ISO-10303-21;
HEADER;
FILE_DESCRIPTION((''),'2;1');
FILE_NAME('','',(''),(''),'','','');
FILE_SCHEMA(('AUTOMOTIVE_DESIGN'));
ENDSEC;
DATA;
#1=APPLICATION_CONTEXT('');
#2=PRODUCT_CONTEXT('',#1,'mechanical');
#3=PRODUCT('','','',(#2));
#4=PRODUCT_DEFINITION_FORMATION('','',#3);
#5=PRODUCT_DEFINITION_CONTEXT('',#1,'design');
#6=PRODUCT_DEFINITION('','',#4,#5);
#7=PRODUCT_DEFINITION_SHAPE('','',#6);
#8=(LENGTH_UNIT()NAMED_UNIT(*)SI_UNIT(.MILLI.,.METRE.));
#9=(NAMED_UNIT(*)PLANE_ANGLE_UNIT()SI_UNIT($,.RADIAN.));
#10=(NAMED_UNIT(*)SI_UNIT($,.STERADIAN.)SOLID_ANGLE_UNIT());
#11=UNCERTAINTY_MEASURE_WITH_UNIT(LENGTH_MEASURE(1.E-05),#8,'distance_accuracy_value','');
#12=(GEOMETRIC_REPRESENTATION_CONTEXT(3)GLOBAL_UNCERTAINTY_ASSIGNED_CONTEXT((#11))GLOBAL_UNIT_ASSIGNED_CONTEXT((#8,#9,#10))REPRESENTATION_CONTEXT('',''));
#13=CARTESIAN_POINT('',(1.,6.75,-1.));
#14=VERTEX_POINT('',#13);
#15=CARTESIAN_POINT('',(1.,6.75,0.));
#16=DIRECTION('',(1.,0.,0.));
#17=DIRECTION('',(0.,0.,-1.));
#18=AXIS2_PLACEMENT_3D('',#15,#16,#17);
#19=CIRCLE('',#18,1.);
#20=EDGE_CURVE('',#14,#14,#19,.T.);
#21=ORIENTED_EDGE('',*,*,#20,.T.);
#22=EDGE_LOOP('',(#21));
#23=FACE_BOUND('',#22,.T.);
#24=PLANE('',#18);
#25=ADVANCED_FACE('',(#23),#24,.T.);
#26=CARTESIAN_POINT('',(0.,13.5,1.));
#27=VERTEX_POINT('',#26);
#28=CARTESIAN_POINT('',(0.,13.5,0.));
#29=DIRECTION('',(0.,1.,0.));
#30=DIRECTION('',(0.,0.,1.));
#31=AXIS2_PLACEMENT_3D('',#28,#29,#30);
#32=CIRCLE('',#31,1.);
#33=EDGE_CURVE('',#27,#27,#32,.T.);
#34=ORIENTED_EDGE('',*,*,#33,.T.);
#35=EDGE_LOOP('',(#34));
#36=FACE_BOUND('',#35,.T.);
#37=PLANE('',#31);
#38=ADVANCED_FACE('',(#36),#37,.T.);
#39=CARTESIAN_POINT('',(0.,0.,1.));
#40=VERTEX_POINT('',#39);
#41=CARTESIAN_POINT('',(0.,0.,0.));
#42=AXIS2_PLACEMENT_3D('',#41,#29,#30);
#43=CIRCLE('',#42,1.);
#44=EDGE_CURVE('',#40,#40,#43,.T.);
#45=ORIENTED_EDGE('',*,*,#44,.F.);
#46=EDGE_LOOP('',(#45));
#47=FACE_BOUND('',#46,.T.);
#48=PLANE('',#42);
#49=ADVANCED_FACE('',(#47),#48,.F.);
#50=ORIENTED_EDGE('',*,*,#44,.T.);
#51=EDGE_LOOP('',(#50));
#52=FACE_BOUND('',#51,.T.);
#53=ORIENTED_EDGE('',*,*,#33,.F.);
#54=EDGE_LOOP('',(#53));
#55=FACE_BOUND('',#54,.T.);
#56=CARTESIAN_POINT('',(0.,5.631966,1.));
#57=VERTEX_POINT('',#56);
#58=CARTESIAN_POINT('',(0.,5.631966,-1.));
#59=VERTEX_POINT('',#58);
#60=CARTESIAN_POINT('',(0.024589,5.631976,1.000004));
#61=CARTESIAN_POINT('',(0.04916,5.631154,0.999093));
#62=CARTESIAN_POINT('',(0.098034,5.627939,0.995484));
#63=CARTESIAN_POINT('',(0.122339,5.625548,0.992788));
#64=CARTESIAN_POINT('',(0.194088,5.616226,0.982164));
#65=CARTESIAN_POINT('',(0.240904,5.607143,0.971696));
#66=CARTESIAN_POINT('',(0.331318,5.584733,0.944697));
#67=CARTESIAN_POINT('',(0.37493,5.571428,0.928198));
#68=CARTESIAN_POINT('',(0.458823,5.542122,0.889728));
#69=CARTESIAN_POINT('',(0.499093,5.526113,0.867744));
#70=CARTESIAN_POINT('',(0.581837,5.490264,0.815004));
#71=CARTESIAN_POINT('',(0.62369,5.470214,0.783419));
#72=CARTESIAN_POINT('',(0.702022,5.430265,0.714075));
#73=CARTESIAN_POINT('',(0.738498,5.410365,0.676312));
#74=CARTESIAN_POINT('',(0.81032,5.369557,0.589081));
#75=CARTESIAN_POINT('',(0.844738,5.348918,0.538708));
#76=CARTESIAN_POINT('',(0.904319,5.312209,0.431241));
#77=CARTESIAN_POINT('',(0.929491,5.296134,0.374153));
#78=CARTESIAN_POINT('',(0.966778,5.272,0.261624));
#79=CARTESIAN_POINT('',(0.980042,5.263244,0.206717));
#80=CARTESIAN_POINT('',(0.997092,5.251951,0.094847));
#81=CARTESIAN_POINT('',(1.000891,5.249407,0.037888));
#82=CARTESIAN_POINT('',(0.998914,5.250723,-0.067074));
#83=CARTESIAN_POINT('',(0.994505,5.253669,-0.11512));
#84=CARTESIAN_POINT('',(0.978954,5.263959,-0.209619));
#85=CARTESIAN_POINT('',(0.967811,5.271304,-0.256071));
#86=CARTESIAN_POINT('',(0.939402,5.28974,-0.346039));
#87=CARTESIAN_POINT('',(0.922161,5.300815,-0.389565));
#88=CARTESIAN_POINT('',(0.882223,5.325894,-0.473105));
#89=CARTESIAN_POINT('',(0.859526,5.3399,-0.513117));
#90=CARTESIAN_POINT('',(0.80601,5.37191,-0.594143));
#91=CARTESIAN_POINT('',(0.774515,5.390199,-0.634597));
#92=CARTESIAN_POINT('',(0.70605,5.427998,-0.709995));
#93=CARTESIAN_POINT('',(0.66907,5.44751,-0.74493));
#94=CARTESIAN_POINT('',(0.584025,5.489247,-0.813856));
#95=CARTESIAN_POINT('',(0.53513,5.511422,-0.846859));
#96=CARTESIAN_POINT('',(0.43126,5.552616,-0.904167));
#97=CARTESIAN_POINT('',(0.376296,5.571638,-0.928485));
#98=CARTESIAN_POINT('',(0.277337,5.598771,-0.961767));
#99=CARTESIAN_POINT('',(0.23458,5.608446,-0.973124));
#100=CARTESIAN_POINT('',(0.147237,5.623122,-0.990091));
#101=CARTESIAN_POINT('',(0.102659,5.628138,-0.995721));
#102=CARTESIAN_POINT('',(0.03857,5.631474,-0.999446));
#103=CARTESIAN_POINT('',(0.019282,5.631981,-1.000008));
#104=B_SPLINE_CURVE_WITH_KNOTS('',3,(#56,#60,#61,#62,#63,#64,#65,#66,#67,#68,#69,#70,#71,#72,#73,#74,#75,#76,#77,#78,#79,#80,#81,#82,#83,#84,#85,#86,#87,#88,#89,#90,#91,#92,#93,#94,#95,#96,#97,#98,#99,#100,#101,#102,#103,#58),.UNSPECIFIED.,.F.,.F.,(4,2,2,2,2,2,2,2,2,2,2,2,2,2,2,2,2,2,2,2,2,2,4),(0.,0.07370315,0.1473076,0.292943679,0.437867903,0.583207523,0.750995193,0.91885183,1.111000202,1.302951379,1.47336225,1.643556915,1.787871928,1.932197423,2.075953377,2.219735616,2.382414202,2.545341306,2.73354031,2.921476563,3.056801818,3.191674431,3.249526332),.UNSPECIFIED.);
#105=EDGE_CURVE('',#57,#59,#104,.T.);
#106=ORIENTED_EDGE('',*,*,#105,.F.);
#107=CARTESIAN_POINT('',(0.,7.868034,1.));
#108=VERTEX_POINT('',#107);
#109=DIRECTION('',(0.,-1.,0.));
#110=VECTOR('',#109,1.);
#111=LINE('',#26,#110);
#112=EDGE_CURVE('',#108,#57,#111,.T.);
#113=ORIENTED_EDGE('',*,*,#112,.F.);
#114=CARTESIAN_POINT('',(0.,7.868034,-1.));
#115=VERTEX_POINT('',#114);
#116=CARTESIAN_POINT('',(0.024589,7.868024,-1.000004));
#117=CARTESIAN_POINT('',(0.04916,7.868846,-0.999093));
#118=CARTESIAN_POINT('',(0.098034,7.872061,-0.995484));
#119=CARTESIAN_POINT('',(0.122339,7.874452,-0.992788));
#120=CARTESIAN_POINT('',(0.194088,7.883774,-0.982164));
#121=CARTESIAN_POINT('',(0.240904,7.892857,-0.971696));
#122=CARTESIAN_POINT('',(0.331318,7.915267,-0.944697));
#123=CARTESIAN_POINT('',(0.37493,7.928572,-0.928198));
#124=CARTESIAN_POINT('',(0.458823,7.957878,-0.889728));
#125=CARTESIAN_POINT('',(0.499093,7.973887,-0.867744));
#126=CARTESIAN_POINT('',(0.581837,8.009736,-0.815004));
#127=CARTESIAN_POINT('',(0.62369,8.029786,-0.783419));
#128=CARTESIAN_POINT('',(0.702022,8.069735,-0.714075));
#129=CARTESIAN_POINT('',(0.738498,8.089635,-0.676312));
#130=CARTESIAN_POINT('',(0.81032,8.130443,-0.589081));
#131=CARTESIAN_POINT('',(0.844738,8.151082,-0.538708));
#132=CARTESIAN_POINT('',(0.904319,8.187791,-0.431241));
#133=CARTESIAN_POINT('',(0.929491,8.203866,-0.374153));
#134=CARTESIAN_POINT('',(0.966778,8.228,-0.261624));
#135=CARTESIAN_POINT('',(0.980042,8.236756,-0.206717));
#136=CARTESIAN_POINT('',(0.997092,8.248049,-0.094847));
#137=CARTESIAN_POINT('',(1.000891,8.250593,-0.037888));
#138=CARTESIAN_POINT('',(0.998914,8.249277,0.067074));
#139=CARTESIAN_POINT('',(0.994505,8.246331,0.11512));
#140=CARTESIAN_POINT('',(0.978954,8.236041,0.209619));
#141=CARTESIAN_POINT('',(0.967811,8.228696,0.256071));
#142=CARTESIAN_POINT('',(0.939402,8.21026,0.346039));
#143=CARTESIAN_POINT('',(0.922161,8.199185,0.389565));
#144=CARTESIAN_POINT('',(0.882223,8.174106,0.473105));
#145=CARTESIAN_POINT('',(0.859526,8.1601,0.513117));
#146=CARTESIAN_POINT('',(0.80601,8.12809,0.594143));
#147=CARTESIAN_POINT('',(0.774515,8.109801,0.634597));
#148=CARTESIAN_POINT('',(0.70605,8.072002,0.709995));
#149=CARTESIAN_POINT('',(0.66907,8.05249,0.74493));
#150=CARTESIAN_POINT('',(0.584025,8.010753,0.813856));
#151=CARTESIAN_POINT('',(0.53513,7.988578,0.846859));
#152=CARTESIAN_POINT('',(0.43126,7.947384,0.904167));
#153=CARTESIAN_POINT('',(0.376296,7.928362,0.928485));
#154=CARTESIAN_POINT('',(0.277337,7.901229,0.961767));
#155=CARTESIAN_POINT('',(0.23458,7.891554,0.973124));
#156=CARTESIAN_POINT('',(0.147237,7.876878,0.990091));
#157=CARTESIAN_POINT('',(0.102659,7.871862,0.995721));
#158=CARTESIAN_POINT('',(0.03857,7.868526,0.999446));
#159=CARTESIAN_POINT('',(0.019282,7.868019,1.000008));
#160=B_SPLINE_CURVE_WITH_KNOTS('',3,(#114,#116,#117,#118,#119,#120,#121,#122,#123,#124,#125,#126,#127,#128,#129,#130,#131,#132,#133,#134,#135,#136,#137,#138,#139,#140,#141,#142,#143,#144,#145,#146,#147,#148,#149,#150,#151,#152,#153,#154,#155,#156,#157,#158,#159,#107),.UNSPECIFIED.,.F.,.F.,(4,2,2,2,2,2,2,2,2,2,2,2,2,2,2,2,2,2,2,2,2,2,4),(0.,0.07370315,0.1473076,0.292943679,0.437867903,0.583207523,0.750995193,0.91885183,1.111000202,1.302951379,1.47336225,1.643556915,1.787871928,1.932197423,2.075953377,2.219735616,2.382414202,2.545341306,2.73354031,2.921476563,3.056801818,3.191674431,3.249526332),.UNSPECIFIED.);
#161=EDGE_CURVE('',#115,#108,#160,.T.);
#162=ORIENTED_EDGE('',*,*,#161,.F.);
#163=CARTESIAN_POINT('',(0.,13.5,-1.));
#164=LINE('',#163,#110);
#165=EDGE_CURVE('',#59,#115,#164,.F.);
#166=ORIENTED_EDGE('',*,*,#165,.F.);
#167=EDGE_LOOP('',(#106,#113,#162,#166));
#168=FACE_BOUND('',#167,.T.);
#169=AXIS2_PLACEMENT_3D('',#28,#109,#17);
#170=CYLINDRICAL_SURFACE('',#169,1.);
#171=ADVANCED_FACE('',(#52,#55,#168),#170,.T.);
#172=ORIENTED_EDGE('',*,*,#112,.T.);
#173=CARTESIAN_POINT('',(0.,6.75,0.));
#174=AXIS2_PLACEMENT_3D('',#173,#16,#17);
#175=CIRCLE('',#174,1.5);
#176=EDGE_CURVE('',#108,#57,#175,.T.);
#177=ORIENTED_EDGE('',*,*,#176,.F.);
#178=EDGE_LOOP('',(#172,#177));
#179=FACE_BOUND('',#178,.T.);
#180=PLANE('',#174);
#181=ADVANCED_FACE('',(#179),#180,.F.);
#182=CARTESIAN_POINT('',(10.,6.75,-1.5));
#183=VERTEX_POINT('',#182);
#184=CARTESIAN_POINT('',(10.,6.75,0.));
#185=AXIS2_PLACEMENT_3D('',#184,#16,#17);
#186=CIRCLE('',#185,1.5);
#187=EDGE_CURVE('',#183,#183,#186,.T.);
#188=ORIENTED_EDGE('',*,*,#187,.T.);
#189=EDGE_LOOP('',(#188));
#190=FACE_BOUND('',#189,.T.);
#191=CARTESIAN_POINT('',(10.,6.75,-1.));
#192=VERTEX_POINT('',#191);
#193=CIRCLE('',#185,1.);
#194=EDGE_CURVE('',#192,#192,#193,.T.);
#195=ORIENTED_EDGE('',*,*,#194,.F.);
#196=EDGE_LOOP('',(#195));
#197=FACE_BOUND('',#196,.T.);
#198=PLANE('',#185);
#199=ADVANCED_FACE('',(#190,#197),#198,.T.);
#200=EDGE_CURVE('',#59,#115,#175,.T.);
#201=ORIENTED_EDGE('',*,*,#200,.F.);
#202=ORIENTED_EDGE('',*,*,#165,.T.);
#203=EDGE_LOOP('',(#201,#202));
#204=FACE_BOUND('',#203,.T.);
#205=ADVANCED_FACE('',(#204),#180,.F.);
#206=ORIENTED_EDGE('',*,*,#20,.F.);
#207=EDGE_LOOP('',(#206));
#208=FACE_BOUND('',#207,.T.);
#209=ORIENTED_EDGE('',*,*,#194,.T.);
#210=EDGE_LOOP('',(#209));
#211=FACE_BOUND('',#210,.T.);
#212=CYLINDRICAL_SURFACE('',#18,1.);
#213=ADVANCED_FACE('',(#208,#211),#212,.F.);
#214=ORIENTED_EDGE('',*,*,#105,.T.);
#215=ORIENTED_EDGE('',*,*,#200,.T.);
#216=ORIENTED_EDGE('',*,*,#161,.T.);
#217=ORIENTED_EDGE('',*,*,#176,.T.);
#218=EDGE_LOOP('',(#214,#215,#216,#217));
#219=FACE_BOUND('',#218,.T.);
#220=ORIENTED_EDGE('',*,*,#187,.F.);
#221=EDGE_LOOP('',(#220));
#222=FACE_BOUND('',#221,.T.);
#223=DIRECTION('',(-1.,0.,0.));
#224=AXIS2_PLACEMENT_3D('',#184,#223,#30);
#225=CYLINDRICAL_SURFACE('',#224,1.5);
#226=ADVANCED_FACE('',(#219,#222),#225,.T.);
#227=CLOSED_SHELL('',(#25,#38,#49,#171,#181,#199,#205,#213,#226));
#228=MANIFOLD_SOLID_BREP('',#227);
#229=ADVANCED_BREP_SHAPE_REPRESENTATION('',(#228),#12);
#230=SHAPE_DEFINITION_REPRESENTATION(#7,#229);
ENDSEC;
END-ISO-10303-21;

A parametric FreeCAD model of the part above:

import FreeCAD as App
import Part
import Sketcher
from FreeCAD import Vector
Q = App.Units.Quantity

doc = App.newDocument("Part")
params = doc.addObject("Spreadsheet::Sheet", "Params")
for row, (alias, value) in enumerate([
    ("sketch1_diameter", "2 mm"),
    ("pad1_length", "13.5 mm"),
    ("sketch2_diameter", "3 mm"),
    ("pad2_length", "10 mm"),
    ("sketch3_diameter", "2 mm"),
    ("pocket1_length", "9 mm"),
], start=1):
    params.set(f"A{row}", alias)
    params.set(f"B{row}", "=" + value)
    params.setAlias(f"B{row}", alias)

body = doc.addObject("PartDesign::Body", "Body")

sketch1 = body.newObject("Sketcher::SketchObject", "Sketch")
sketch1.AttachmentSupport = (doc.getObject("XZ_Plane"), [""])
sketch1.MapMode = "FlatFace"
sketch1.addGeometry(Part.Circle(Vector(0, 0, 0), Vector(0, 0, 1), 1), False)
sketch1.addConstraint([
    Sketcher.Constraint("Coincident", 0, 3, -1, 1),
    Sketcher.Constraint("Diameter", 0, Q("2 mm")),
])
sketch1.setExpression("Constraints[1]", "Params.sketch1_diameter")
pad1 = body.newObject("PartDesign::Pad", "Pad")
pad1.Profile = sketch1
pad1.setExpression("Length", "Params.pad1_length")
pad1.Reversed = True

sketch2 = body.newObject("Sketcher::SketchObject", "Sketch001")
sketch2.AttachmentSupport = (doc.getObject("YZ_Plane"), [""])
sketch2.MapMode = "FlatFace"
sketch2.addGeometry(Part.Circle(Vector(6.8, 0, 0), Vector(0, 0, 1), 1.5), False)
sketch2.addConstraint([
    Sketcher.Constraint("PointOnObject", 0, 3, -1),
    Sketcher.Constraint("Diameter", 0, Q("3 mm")),
    Sketcher.Constraint("DistanceX", -1, 1, 0, 3, Q("6.75 mm")),
])
sketch2.setExpression("Constraints[1]", "Params.sketch2_diameter")
pad2 = body.newObject("PartDesign::Pad", "Pad001")
pad2.Profile = sketch2
pad2.setExpression("Length", "Params.pad2_length")

sketch3 = body.newObject("Sketcher::SketchObject", "Sketch002")
sketch3.AttachmentSupport = (doc.getObject("YZ_Plane"), [""])
sketch3.MapMode = "FlatFace"
sketch3.AttachmentOffset = App.Placement(Vector(0, 0, 10), App.Rotation())
sketch3.addGeometry(Part.Circle(Vector(6.8, 0, 0), Vector(0, 0, 1), 1), False)
sketch3.addConstraint([
    Sketcher.Constraint("PointOnObject", 0, 3, -1),
    Sketcher.Constraint("Diameter", 0, Q("2 mm")),
    Sketcher.Constraint("DistanceX", -1, 1, 0, 3, Q("6.75 mm")),
])
sketch3.setExpression("Constraints[1]", "Params.sketch3_diameter")
pocket1 = body.newObject("PartDesign::Pocket", "Pocket")
pocket1.Profile = sketch3
pocket1.setExpression("Length", "Params.pocket1_length")

doc.recompute()
